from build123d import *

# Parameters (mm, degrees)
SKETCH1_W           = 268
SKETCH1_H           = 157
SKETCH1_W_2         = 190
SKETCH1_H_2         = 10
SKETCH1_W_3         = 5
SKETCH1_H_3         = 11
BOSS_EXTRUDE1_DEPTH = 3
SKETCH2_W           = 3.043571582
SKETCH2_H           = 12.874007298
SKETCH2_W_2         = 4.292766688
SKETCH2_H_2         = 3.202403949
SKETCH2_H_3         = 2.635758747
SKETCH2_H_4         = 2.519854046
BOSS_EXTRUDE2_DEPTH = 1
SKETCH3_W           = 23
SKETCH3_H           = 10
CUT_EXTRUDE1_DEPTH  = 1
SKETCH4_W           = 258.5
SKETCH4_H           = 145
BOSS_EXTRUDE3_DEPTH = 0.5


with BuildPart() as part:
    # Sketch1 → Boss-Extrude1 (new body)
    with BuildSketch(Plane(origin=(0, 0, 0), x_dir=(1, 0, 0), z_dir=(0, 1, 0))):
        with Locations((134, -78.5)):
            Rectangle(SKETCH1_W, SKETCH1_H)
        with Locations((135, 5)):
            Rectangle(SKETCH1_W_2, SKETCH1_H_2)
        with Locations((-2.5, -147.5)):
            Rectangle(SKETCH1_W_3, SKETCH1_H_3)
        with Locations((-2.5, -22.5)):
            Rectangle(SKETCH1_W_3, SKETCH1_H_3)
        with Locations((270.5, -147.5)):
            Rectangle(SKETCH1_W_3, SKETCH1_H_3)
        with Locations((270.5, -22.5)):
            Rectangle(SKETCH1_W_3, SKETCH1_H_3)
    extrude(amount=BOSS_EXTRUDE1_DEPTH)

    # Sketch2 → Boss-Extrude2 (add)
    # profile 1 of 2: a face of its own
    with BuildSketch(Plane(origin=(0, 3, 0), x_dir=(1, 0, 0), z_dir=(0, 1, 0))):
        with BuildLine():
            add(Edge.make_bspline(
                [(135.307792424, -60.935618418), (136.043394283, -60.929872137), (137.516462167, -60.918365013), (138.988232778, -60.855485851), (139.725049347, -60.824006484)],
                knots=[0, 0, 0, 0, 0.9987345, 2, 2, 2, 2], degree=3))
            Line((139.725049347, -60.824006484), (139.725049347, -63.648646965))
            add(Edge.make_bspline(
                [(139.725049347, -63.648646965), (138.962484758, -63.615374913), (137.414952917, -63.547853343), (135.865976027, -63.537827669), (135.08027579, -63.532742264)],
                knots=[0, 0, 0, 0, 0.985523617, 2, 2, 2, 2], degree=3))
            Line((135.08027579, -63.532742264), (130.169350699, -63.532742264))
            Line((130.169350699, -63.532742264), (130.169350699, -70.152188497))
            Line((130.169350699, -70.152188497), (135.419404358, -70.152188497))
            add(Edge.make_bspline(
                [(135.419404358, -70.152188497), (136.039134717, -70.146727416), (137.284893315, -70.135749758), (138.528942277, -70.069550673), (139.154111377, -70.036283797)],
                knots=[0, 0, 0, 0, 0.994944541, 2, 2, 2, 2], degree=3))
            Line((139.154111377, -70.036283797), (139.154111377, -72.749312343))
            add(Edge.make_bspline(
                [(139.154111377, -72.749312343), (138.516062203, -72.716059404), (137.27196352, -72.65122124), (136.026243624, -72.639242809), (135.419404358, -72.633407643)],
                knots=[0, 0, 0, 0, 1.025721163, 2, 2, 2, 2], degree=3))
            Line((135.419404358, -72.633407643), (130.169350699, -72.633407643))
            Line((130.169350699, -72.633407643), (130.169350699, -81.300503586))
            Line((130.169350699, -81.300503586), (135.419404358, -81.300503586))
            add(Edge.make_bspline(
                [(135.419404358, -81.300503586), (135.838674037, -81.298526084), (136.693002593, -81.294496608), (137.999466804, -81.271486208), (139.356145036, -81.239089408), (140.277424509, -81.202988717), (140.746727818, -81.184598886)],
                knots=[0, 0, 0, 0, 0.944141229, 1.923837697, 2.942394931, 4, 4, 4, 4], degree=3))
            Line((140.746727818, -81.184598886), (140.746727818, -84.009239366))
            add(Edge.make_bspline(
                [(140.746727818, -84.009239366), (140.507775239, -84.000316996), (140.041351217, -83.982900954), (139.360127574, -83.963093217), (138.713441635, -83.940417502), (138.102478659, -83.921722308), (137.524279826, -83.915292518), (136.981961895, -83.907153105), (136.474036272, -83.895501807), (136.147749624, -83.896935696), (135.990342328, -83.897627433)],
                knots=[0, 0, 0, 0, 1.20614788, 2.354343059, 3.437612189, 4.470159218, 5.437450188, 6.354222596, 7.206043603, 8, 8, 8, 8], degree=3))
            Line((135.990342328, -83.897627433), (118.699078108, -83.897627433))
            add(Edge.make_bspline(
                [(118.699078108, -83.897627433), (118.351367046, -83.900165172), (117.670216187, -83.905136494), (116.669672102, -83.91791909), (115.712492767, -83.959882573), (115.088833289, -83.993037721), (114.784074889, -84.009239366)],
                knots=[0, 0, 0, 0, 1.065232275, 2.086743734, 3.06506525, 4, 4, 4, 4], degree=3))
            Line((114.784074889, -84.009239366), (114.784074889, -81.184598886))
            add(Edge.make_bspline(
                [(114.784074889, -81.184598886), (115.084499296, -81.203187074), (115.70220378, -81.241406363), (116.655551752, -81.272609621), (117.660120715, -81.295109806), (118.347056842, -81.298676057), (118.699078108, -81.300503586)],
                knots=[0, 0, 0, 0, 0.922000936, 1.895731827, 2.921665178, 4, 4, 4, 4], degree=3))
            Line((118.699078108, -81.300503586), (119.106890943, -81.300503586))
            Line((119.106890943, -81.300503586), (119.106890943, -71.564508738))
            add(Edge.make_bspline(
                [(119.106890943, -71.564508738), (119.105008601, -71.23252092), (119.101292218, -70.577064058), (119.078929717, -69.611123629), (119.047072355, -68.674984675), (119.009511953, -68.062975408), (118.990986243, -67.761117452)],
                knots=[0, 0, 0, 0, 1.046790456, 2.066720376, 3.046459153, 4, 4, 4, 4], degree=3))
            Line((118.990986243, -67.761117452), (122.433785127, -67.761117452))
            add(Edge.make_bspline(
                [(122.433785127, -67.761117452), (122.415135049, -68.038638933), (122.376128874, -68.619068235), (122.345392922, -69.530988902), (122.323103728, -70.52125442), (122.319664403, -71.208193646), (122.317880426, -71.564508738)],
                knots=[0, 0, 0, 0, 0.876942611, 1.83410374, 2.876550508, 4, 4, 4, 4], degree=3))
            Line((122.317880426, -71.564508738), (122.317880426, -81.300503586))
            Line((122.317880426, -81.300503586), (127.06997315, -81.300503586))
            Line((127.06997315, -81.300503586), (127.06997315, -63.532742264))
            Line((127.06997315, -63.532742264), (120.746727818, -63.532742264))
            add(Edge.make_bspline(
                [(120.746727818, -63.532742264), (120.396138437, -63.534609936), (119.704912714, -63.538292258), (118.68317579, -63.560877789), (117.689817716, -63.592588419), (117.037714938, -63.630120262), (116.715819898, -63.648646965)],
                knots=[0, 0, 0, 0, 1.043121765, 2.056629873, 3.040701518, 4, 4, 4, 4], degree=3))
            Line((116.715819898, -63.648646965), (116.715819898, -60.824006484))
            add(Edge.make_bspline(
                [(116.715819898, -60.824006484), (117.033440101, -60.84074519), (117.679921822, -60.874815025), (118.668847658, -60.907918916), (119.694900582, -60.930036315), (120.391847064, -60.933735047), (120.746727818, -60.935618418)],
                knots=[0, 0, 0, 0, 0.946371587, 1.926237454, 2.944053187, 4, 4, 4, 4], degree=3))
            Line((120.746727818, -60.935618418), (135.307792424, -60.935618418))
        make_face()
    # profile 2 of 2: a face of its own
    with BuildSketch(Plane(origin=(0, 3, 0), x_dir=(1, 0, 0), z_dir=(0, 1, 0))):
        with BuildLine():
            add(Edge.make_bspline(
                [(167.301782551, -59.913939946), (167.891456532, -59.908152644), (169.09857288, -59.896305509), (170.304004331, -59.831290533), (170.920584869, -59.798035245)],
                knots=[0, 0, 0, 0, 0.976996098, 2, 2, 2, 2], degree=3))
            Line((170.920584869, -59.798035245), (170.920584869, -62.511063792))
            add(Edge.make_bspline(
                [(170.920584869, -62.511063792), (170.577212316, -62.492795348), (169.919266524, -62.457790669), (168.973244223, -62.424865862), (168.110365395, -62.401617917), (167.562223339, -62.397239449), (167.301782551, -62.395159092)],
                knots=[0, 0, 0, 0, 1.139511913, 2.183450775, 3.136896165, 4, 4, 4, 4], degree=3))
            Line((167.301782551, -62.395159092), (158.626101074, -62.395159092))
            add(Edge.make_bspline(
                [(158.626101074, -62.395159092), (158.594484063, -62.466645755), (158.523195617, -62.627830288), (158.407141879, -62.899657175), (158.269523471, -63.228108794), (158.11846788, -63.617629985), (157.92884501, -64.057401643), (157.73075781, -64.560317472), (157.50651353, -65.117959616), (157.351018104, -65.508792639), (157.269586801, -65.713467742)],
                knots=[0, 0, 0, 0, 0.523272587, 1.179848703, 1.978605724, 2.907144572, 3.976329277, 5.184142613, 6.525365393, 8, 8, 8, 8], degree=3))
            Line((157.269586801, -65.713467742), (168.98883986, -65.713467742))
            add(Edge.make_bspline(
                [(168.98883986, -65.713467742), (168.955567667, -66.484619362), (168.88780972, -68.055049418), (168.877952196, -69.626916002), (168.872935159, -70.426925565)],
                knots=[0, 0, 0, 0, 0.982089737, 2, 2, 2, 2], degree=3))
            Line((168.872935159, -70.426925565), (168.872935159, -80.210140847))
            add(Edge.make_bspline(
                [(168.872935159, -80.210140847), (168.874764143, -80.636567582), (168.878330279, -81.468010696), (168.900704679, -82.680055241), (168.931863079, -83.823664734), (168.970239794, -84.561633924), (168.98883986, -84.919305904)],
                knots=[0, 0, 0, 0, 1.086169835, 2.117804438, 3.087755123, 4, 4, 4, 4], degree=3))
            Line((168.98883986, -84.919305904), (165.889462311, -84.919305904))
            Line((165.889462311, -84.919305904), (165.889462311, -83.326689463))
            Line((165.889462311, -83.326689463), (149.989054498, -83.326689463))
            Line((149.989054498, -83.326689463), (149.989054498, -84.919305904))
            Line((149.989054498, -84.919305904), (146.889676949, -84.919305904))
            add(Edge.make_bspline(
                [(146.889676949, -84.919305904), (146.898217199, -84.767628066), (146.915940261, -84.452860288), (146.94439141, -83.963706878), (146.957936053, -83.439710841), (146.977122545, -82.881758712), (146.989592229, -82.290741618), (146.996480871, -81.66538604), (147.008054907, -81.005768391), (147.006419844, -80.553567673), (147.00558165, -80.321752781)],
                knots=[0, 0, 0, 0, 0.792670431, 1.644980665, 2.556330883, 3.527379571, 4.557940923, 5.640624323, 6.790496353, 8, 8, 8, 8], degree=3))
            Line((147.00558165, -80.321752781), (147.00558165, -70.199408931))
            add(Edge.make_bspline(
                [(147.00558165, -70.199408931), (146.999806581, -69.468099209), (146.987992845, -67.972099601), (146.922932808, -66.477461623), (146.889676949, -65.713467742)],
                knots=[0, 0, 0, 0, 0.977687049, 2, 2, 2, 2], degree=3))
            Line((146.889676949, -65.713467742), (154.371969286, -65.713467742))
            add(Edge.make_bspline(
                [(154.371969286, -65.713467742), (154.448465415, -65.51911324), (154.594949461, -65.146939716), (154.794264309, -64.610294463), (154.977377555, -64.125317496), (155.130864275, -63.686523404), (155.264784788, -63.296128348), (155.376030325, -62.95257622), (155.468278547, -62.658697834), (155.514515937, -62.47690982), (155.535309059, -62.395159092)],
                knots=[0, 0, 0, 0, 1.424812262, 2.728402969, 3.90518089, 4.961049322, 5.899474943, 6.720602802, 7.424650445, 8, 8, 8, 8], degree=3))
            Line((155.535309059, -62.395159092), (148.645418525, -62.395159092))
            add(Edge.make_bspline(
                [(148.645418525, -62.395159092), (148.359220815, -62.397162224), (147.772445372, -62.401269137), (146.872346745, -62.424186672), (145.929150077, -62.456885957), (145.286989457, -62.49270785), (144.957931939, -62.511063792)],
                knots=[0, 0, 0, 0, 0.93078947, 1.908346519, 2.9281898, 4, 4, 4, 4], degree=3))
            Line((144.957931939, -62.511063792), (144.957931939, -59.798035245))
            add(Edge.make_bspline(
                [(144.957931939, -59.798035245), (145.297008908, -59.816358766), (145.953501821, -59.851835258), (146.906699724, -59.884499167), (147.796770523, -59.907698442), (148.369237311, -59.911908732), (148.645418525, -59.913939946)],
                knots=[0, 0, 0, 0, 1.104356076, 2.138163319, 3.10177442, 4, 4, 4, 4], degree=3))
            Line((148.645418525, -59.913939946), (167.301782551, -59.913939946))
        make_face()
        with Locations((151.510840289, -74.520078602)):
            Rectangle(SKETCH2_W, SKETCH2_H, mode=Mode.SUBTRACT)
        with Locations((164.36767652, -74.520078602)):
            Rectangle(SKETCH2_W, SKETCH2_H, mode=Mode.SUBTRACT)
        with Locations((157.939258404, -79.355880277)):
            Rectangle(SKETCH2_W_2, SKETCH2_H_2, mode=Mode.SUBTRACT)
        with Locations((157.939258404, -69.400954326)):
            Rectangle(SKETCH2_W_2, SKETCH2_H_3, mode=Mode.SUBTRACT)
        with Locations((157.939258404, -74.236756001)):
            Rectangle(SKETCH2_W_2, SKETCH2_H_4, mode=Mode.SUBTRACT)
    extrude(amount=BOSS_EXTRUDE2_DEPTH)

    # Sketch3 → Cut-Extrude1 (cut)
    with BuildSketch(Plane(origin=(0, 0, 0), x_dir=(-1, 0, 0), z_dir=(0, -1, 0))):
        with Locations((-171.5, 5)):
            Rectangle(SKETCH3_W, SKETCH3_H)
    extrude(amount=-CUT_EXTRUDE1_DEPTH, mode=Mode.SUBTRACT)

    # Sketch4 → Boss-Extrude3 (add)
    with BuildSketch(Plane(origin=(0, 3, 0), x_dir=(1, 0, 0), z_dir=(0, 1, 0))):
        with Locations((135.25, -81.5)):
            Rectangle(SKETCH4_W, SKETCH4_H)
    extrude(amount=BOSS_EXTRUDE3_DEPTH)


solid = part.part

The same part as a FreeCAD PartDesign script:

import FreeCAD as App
import Part
import Sketcher

V = App.Vector

doc = App.newDocument("Part")
params = doc.addObject("Spreadsheet::Sheet", "Params")
for row, (alias, value) in enumerate([
    ("sketch1_width", "268 mm"),
    ("sketch1_width2", "5 mm"),
    ("sketch1_width3", "38 mm"),
    ("sketch1_width4", "190 mm"),
    ("sketch1_height", "4 mm"),
    ("pad1_length", "3 mm"),
    ("pad2_length", "1 mm"),
    ("sketch3_width", "23 mm"),
    ("sketch3_height", "10 mm"),
    ("pocket1_length", "1 mm"),
    ("sketch4_height", "145 mm"),
    ("sketch4_width", "258.5 mm"),
    ("pad3_length", "0.5 mm"),
], start=1):
    params.set(f"A{row}", alias)
    params.set(f"B{row}", "=" + value)
    params.setAlias(f"B{row}", alias)

body = doc.addObject("PartDesign::Body", "Body")

sketch1 = body.newObject("Sketcher::SketchObject", "Sketch")
sketch1.AttachmentSupport = (doc.getObject("XZ_Plane"), [""])
sketch1.MapMode = "FlatFace"
sketch1.addGeometry(Part.LineSegment(V(0, 153, 0), V(0, 157, 0)), False)
sketch1.addGeometry(Part.LineSegment(V(0, 157, 0), V(268, 157, 0)), False)
sketch1.addGeometry(Part.LineSegment(V(268, 157, 0), V(268, 153, 0)), False)
sketch1.addGeometry(Part.LineSegment(V(268, 153, 0), V(273, 153, 0)), False)
sketch1.addGeometry(Part.LineSegment(V(273, 153, 0), V(273, 142, 0)), False)
sketch1.addGeometry(Part.LineSegment(V(273, 142, 0), V(268, 142, 0)), False)
sketch1.addGeometry(Part.LineSegment(V(268, 142, 0), V(268, 28, 0)), False)
sketch1.addGeometry(Part.LineSegment(V(268, 28, 0), V(273, 28, 0)), False)
sketch1.addGeometry(Part.LineSegment(V(273, 28, 0), V(273, 17, 0)), False)
sketch1.addGeometry(Part.LineSegment(V(273, 17, 0), V(268, 17, 0)), False)
sketch1.addGeometry(Part.LineSegment(V(268, 17, 0), V(268, 0, 0)), False)
sketch1.addGeometry(Part.LineSegment(V(268, 0, 0), V(230, 0, 0)), False)
sketch1.addGeometry(Part.LineSegment(V(230, 0, 0), V(230, -10, 0)), False)
sketch1.addGeometry(Part.LineSegment(V(230, -10, 0), V(40, -10, 0)), False)
sketch1.addGeometry(Part.LineSegment(V(40, -10, 0), V(40, 0, 0)), False)
sketch1.addGeometry(Part.LineSegment(V(40, 0, 0), V(0, 0, 0)), False)
sketch1.addGeometry(Part.LineSegment(V(0, 0, 0), V(0, 17, 0)), False)
sketch1.addGeometry(Part.LineSegment(V(0, 17, 0), V(-5, 17, 0)), False)
sketch1.addGeometry(Part.LineSegment(V(-5, 17, 0), V(-5, 28, 0)), False)
sketch1.addGeometry(Part.LineSegment(V(-5, 28, 0), V(0, 28, 0)), False)
sketch1.addGeometry(Part.LineSegment(V(0, 28, 0), V(0, 142, 0)), False)
sketch1.addGeometry(Part.LineSegment(V(0, 142, 0), V(-5, 142, 0)), False)
sketch1.addGeometry(Part.LineSegment(V(-5, 142, 0), V(-5, 153, 0)), False)
sketch1.addGeometry(Part.LineSegment(V(-5, 153, 0), V(0, 153, 0)), False)
sketch1.addConstraint(Sketcher.Constraint("Coincident", 0, 2, 1, 1))
sketch1.addConstraint(Sketcher.Constraint("Coincident", 1, 2, 2, 1))
sketch1.addConstraint(Sketcher.Constraint("Coincident", 2, 2, 3, 1))
sketch1.addConstraint(Sketcher.Constraint("Coincident", 3, 2, 4, 1))
sketch1.addConstraint(Sketcher.Constraint("Coincident", 4, 2, 5, 1))
sketch1.addConstraint(Sketcher.Constraint("Coincident", 5, 2, 6, 1))
sketch1.addConstraint(Sketcher.Constraint("Coincident", 6, 2, 7, 1))
sketch1.addConstraint(Sketcher.Constraint("Coincident", 7, 2, 8, 1))
sketch1.addConstraint(Sketcher.Constraint("Coincident", 8, 2, 9, 1))
sketch1.addConstraint(Sketcher.Constraint("Coincident", 9, 2, 10, 1))
sketch1.addConstraint(Sketcher.Constraint("Coincident", 10, 2, 11, 1))
sketch1.addConstraint(Sketcher.Constraint("Coincident", 11, 2, 12, 1))
sketch1.addConstraint(Sketcher.Constraint("Coincident", 12, 2, 13, 1))
sketch1.addConstraint(Sketcher.Constraint("Coincident", 13, 2, 14, 1))
sketch1.addConstraint(Sketcher.Constraint("Coincident", 14, 2, 15, 1))
sketch1.addConstraint(Sketcher.Constraint("Coincident", 15, 2, 16, 1))
sketch1.addConstraint(Sketcher.Constraint("Coincident", 16, 2, 17, 1))
sketch1.addConstraint(Sketcher.Constraint("Coincident", 17, 2, 18, 1))
sketch1.addConstraint(Sketcher.Constraint("Coincident", 18, 2, 19, 1))
sketch1.addConstraint(Sketcher.Constraint("Coincident", 19, 2, 20, 1))
sketch1.addConstraint(Sketcher.Constraint("Coincident", 20, 2, 21, 1))
sketch1.addConstraint(Sketcher.Constraint("Coincident", 21, 2, 22, 1))
sketch1.addConstraint(Sketcher.Constraint("Coincident", 22, 2, 23, 1))
sketch1.addConstraint(Sketcher.Constraint("Coincident", 23, 2, 0, 1))
sketch1.addConstraint(Sketcher.Constraint("Vertical", 0))
sketch1.addConstraint(Sketcher.Constraint("Horizontal", 1))
sketch1.addConstraint(Sketcher.Constraint("Vertical", 2))
sketch1.addConstraint(Sketcher.Constraint("Horizontal", 3))
sketch1.addConstraint(Sketcher.Constraint("Vertical", 4))
sketch1.addConstraint(Sketcher.Constraint("Horizontal", 5))
sketch1.addConstraint(Sketcher.Constraint("Vertical", 6))
sketch1.addConstraint(Sketcher.Constraint("Horizontal", 7))
sketch1.addConstraint(Sketcher.Constraint("Vertical", 8))
sketch1.addConstraint(Sketcher.Constraint("Horizontal", 9))
sketch1.addConstraint(Sketcher.Constraint("Vertical", 10))
sketch1.addConstraint(Sketcher.Constraint("Horizontal", 11))
sketch1.addConstraint(Sketcher.Constraint("Vertical", 12))
sketch1.addConstraint(Sketcher.Constraint("Horizontal", 13))
sketch1.addConstraint(Sketcher.Constraint("Vertical", 14))
sketch1.addConstraint(Sketcher.Constraint("Horizontal", 15))
sketch1.addConstraint(Sketcher.Constraint("Vertical", 16))
sketch1.addConstraint(Sketcher.Constraint("Horizontal", 17))
sketch1.addConstraint(Sketcher.Constraint("Vertical", 18))
sketch1.addConstraint(Sketcher.Constraint("Horizontal", 19))
sketch1.addConstraint(Sketcher.Constraint("Vertical", 20))
sketch1.addConstraint(Sketcher.Constraint("Horizontal", 21))
sketch1.addConstraint(Sketcher.Constraint("Vertical", 22))
sketch1.addConstraint(Sketcher.Constraint("Horizontal", 23))
sketch1.addConstraint(Sketcher.Constraint("Coincident", 15, 2, -1, 1))
sketch1.addConstraint(Sketcher.Constraint("PointOnObject", 0, 2, -2))
sketch1.addConstraint(Sketcher.Constraint("PointOnObject", 10, 2, -1))
sketch1.addConstraint(Sketcher.Constraint("PointOnObject", 19, 2, -2))
sketch1.addConstraint(Sketcher.Constraint("Horizontal", 9, 2, 16, 2))
sketch1.addConstraint(Sketcher.Constraint("Horizontal", 7, 2, 18, 2))
sketch1.addConstraint(Sketcher.Constraint("Horizontal", 5, 2, 20, 2))
sketch1.addConstraint(Sketcher.Constraint("Horizontal", 3, 2, 22, 2))
sketch1.addConstraint(Sketcher.Constraint("Vertical", 2, 2, 5, 2))
sketch1.addConstraint(Sketcher.Constraint("Vertical", 4, 2, 7, 2))
sketch1.addConstraint(Sketcher.Constraint("Vertical", 6, 2, 9, 2))
sketch1.addConstraint(Sketcher.Constraint("Vertical", 18, 2, 21, 2))
sketch1.addConstraint(Sketcher.Constraint("Equal", 9, 17))
sketch1.addConstraint(Sketcher.Constraint("Equal", 4, 8))
sketch1.addConstraint(Sketcher.Constraint("DistanceX", 1, 1, 1, 2, 268.0))
sketch1.addConstraint(Sketcher.Constraint("DistanceX", 3, 1, 3, 2, 5.0))
sketch1.addConstraint(Sketcher.Constraint("DistanceX", 11, 2, 11, 1, 38.0))
sketch1.addConstraint(Sketcher.Constraint("DistanceX", 13, 2, 13, 1, 190.0))
sketch1.addConstraint(Sketcher.Constraint("DistanceY", 0, 1, 0, 2, 4.0))
sketch1.addConstraint(Sketcher.Constraint("DistanceY", 4, 2, 4, 1, 11.0))
sketch1.addConstraint(Sketcher.Constraint("DistanceY", 6, 2, 6, 1, 114.0))
sketch1.addConstraint(Sketcher.Constraint("DistanceY", 10, 2, 10, 1, 17.0))
sketch1.addConstraint(Sketcher.Constraint("DistanceY", 12, 2, 12, 1, 10.0))
sketch1.setExpression("Constraints[62]", "Params.sketch1_width")
sketch1.setExpression("Constraints[63]", "Params.sketch1_width2")
sketch1.setExpression("Constraints[64]", "Params.sketch1_width3")
sketch1.setExpression("Constraints[65]", "Params.sketch1_width4")
sketch1.setExpression("Constraints[66]", "Params.sketch1_height")
pad1 = body.newObject("PartDesign::Pad", "Pad")
pad1.Profile = sketch1
pad1.setExpression("Length", "Params.pad1_length")
pad1.Reversed = True

sketch2 = body.newObject("Sketcher::SketchObject", "Sketch001")
sketch2.AttachmentSupport = (doc.getObject("XZ_Plane"), [""])
sketch2.MapMode = "FlatFace"
sketch2.AttachmentOffset = App.Placement(V(0, 0, -3), App.Rotation())
sketch2.addGeometry(Part.BSplineCurve([V(135.307792, 60.935618, 0), V(136.043394, 60.929872, 0), V(137.516462, 60.918365, 0), V(138.988233, 60.855486, 0), V(139.725049, 60.824006, 0)], [4, 1, 4], [0, 0.9987345, 2], False, 3, [1, 1, 1, 1, 1], False), False)
sketch2.addGeometry(Part.LineSegment(V(135.307792, 60.935618, 0), V(120.746728, 60.935618, 0)), False)
sketch2.addGeometry(Part.BSplineCurve([V(116.71582, 60.824006, 0), V(117.03344, 60.840745, 0), V(117.679922, 60.874815, 0), V(118.668848, 60.907919, 0), V(119.694901, 60.930036, 0), V(120.391847, 60.933735, 0), V(120.746728, 60.935618, 0)], [4, 1, 1, 1, 4], [0, 0.946371587, 1.926237454, 2.944053187, 4], False, 3, [1, 1, 1, 1, 1, 1, 1], False), False)
sketch2.addGeometry(Part.LineSegment(V(116.71582, 60.824006, 0), V(116.71582, 63.648647, 0)), False)
sketch2.addGeometry(Part.BSplineCurve([V(120.746728, 63.532742, 0), V(120.396138, 63.53461, 0), V(119.704913, 63.538292, 0), V(118.683176, 63.560878, 0), V(117.689818, 63.592588, 0), V(117.037715, 63.63012, 0), V(116.71582, 63.648647, 0)], [4, 1, 1, 1, 4], [0, 1.043121765, 2.056629873, 3.040701518, 4], False, 3, [1, 1, 1, 1, 1, 1, 1], False), False)
sketch2.addGeometry(Part.LineSegment(V(120.746728, 63.532742, 0), V(127.069973, 63.532742, 0)), False)
sketch2.addGeometry(Part.LineSegment(V(127.069973, 63.532742, 0), V(127.069973, 81.300504, 0)), False)
sketch2.addGeometry(Part.LineSegment(V(127.069973, 81.300504, 0), V(122.31788, 81.300504, 0)), False)
sketch2.addGeometry(Part.LineSegment(V(122.31788, 81.300504, 0), V(122.31788, 71.564509, 0)), False)
sketch2.addGeometry(Part.BSplineCurve([V(122.433785, 67.761117, 0), V(122.415135, 68.038639, 0), V(122.376129, 68.619068, 0), V(122.345393, 69.530989, 0), V(122.323104, 70.521254, 0), V(122.319664, 71.208194, 0), V(122.31788, 71.564509, 0)], [4, 1, 1, 1, 4], [0, 0.876942611, 1.83410374, 2.876550508, 4], False, 3, [1, 1, 1, 1, 1, 1, 1], False), False)
sketch2.addGeometry(Part.LineSegment(V(122.433785, 67.761117, 0), V(118.990986, 67.761117, 0)), False)
sketch2.addGeometry(Part.BSplineCurve([V(119.106891, 71.564509, 0), V(119.105009, 71.232521, 0), V(119.101292, 70.577064, 0), V(119.07893, 69.611124, 0), V(119.047072, 68.674985, 0), V(119.009512, 68.062975, 0), V(118.990986, 67.761117, 0)], [4, 1, 1, 1, 4], [0, 1.046790456, 2.066720376, 3.046459153, 4], False, 3, [1, 1, 1, 1, 1, 1, 1], False), False)
sketch2.addGeometry(Part.LineSegment(V(119.106891, 71.564509, 0), V(119.106891, 81.300504, 0)), False)
sketch2.addGeometry(Part.LineSegment(V(119.106891, 81.300504, 0), V(118.699078, 81.300504, 0)), False)
sketch2.addGeometry(Part.BSplineCurve([V(114.784075, 81.184599, 0), V(115.084499, 81.203187, 0), V(115.702204, 81.241406, 0), V(116.655552, 81.27261, 0), V(117.660121, 81.29511, 0), V(118.347057, 81.298676, 0), V(118.699078, 81.300504, 0)], [4, 1, 1, 1, 4], [0, 0.922000936, 1.895731827, 2.921665178, 4], False, 3, [1, 1, 1, 1, 1, 1, 1], False), False)
sketch2.addGeometry(Part.LineSegment(V(114.784075, 81.184599, 0), V(114.784075, 84.009239, 0)), False)
sketch2.addGeometry(Part.BSplineCurve([V(118.699078, 83.897627, 0), V(118.351367, 83.900165, 0), V(117.670216, 83.905136, 0), V(116.669672, 83.917919, 0), V(115.712493, 83.959883, 0), V(115.088833, 83.993038, 0), V(114.784075, 84.009239, 0)], [4, 1, 1, 1, 4], [0, 1.065232275, 2.086743734, 3.06506525, 4], False, 3, [1, 1, 1, 1, 1, 1, 1], False), False)
sketch2.addGeometry(Part.LineSegment(V(118.699078, 83.897627, 0), V(135.990342, 83.897627, 0)), False)
sketch2.addGeometry(Part.BSplineCurve([V(140.746728, 84.009239, 0), V(140.507775, 84.000317, 0), V(140.041351, 83.982901, 0), V(139.360128, 83.963093, 0), V(138.713442, 83.940418, 0), V(138.102479, 83.921722, 0), V(137.52428, 83.915293, 0), V(136.981962, 83.907153, 0), V(136.474036, 83.895502, 0), V(136.14775, 83.896936, 0), V(135.990342, 83.897627, 0)], [4, 1, 1, 1, 1, 1, 1, 1, 4], [0, 1.20614788, 2.354343059, 3.437612189, 4.470159218, 5.437450188, 6.354222596, 7.206043603, 8], False, 3, [1, 1, 1, 1, 1, 1, 1, 1, 1, 1, 1], False), False)
sketch2.addGeometry(Part.LineSegment(V(140.746728, 84.009239, 0), V(140.746728, 81.184599, 0)), False)
sketch2.addGeometry(Part.BSplineCurve([V(135.419404, 81.300504, 0), V(135.838674, 81.298526, 0), V(136.693003, 81.294497, 0), V(137.999467, 81.271486, 0), V(139.356145, 81.239089, 0), V(140.277425, 81.202989, 0), V(140.746728, 81.184599, 0)], [4, 1, 1, 1, 4], [0, 0.944141229, 1.923837697, 2.942394931, 4], False, 3, [1, 1, 1, 1, 1, 1, 1], False), False)
sketch2.addGeometry(Part.LineSegment(V(135.419404, 81.300504, 0), V(130.169351, 81.300504, 0)), False)
sketch2.addGeometry(Part.LineSegment(V(130.169351, 81.300504, 0), V(130.169351, 72.633408, 0)), False)
sketch2.addGeometry(Part.LineSegment(V(130.169351, 72.633408, 0), V(135.419404, 72.633408, 0)), False)
sketch2.addGeometry(Part.BSplineCurve([V(139.154111, 72.749312, 0), V(138.516062, 72.716059, 0), V(137.271964, 72.651221, 0), V(136.026244, 72.639243, 0), V(135.419404, 72.633408, 0)], [4, 1, 4], [0, 1.025721163, 2], False, 3, [1, 1, 1, 1, 1], False), False)
sketch2.addGeometry(Part.LineSegment(V(139.154111, 72.749312, 0), V(139.154111, 70.036284, 0)), False)
sketch2.addGeometry(Part.BSplineCurve([V(135.419404, 70.152188, 0), V(136.039135, 70.146727, 0), V(137.284893, 70.13575, 0), V(138.528942, 70.069551, 0), V(139.154111, 70.036284, 0)], [4, 1, 4], [0, 0.994944541, 2], False, 3, [1, 1, 1, 1, 1], False), False)
sketch2.addGeometry(Part.LineSegment(V(135.419404, 70.152188, 0), V(130.169351, 70.152188, 0)), False)
sketch2.addGeometry(Part.LineSegment(V(130.169351, 70.152188, 0), V(130.169351, 63.532742, 0)), False)
sketch2.addGeometry(Part.LineSegment(V(130.169351, 63.532742, 0), V(135.080276, 63.532742, 0)), False)
sketch2.addGeometry(Part.BSplineCurve([V(139.725049, 63.648647, 0), V(138.962485, 63.615375, 0), V(137.414953, 63.547853, 0), V(135.865976, 63.537828, 0), V(135.080276, 63.532742, 0)], [4, 1, 4], [0, 0.985523617, 2], False, 3, [1, 1, 1, 1, 1], False), False)
sketch2.addGeometry(Part.LineSegment(V(139.725049, 63.648647, 0), V(139.725049, 60.824006, 0)), False)
sketch2.addGeometry(Part.BSplineCurve([V(167.301783, 59.91394, 0), V(167.891457, 59.908153, 0), V(169.098573, 59.896306, 0), V(170.304004, 59.831291, 0), V(170.920585, 59.798035, 0)], [4, 1, 4], [0, 0.976996098, 2], False, 3, [1, 1, 1, 1, 1], False), False)
sketch2.addGeometry(Part.LineSegment(V(167.301783, 59.91394, 0), V(148.645419, 59.91394, 0)), False)
sketch2.addGeometry(Part.BSplineCurve([V(144.957932, 59.798035, 0), V(145.297009, 59.816359, 0), V(145.953502, 59.851835, 0), V(146.9067, 59.884499, 0), V(147.796771, 59.907698, 0), V(148.369237, 59.911909, 0), V(148.645419, 59.91394, 0)], [4, 1, 1, 1, 4], [0, 1.104356076, 2.138163319, 3.10177442, 4], False, 3, [1, 1, 1, 1, 1, 1, 1], False), False)
sketch2.addGeometry(Part.LineSegment(V(144.957932, 59.798035, 0), V(144.957932, 62.511064, 0)), False)
sketch2.addGeometry(Part.BSplineCurve([V(148.645419, 62.395159, 0), V(148.359221, 62.397162, 0), V(147.772445, 62.401269, 0), V(146.872347, 62.424187, 0), V(145.92915, 62.456886, 0), V(145.286989, 62.492708, 0), V(144.957932, 62.511064, 0)], [4, 1, 1, 1, 4], [0, 0.93078947, 1.908346519, 2.9281898, 4], False, 3, [1, 1, 1, 1, 1, 1, 1], False), False)
sketch2.addGeometry(Part.LineSegment(V(148.645419, 62.395159, 0), V(155.535309, 62.395159, 0)), False)
sketch2.addGeometry(Part.BSplineCurve([V(154.371969, 65.713468, 0), V(154.448465, 65.519113, 0), V(154.594949, 65.14694, 0), V(154.794264, 64.610294, 0), V(154.977378, 64.125317, 0), V(155.130864, 63.686523, 0), V(155.264785, 63.296128, 0), V(155.37603, 62.952576, 0), V(155.468279, 62.658698, 0), V(155.514516, 62.47691, 0), V(155.535309, 62.395159, 0)], [4, 1, 1, 1, 1, 1, 1, 1, 4], [0, 1.424812262, 2.728402969, 3.90518089, 4.961049322, 5.899474943, 6.720602802, 7.424650445, 8], False, 3, [1, 1, 1, 1, 1, 1, 1, 1, 1, 1, 1], False), False)
sketch2.addGeometry(Part.LineSegment(V(154.371969, 65.713468, 0), V(146.889677, 65.713468, 0)), False)
sketch2.addGeometry(Part.BSplineCurve([V(147.005582, 70.199409, 0), V(146.999807, 69.468099, 0), V(146.987993, 67.9721, 0), V(146.922933, 66.477462, 0), V(146.889677, 65.713468, 0)], [4, 1, 4], [0, 0.977687049, 2], False, 3, [1, 1, 1, 1, 1], False), False)
sketch2.addGeometry(Part.LineSegment(V(147.005582, 70.199409, 0), V(147.005582, 80.321753, 0)), False)
sketch2.addGeometry(Part.BSplineCurve([V(146.889677, 84.919306, 0), V(146.898217, 84.767628, 0), V(146.91594, 84.45286, 0), V(146.944391, 83.963707, 0), V(146.957936, 83.439711, 0), V(146.977123, 82.881759, 0), V(146.989592, 82.290742, 0), V(146.996481, 81.665386, 0), V(147.008055, 81.005768, 0), V(147.00642, 80.553568, 0), V(147.005582, 80.321753, 0)], [4, 1, 1, 1, 1, 1, 1, 1, 4], [0, 0.792670431, 1.644980665, 2.556330883, 3.527379571, 4.557940923, 5.640624323, 6.790496353, 8], False, 3, [1, 1, 1, 1, 1, 1, 1, 1, 1, 1, 1], False), False)
sketch2.addGeometry(Part.LineSegment(V(146.889677, 84.919306, 0), V(149.989054, 84.919306, 0)), False)
sketch2.addGeometry(Part.LineSegment(V(149.989054, 84.919306, 0), V(149.989054, 83.326689, 0)), False)
sketch2.addGeometry(Part.LineSegment(V(149.989054, 83.326689, 0), V(165.889462, 83.326689, 0)), False)
sketch2.addGeometry(Part.LineSegment(V(165.889462, 83.326689, 0), V(165.889462, 84.919306, 0)), False)
sketch2.addGeometry(Part.LineSegment(V(165.889462, 84.919306, 0), V(168.98884, 84.919306, 0)), False)
sketch2.addGeometry(Part.BSplineCurve([V(168.872935, 80.210141, 0), V(168.874764, 80.636568, 0), V(168.87833, 81.468011, 0), V(168.900705, 82.680055, 0), V(168.931863, 83.823665, 0), V(168.97024, 84.561634, 0), V(168.98884, 84.919306, 0)], [4, 1, 1, 1, 4], [0, 1.086169835, 2.117804438, 3.087755123, 4], False, 3, [1, 1, 1, 1, 1, 1, 1], False), False)
sketch2.addGeometry(Part.LineSegment(V(168.872935, 80.210141, 0), V(168.872935, 70.426926, 0)), False)
sketch2.addGeometry(Part.BSplineCurve([V(168.98884, 65.713468, 0), V(168.955568, 66.484619, 0), V(168.88781, 68.055049, 0), V(168.877952, 69.626916, 0), V(168.872935, 70.426926, 0)], [4, 1, 4], [0, 0.982089737, 2], False, 3, [1, 1, 1, 1, 1], False), False)
sketch2.addGeometry(Part.LineSegment(V(168.98884, 65.713468, 0), V(157.269587, 65.713468, 0)), False)
sketch2.addGeometry(Part.BSplineCurve([V(158.626101, 62.395159, 0), V(158.594484, 62.466646, 0), V(158.523196, 62.62783, 0), V(158.407142, 62.899657, 0), V(158.269523, 63.228109, 0), V(158.118468, 63.61763, 0), V(157.928845, 64.057402, 0), V(157.730758, 64.560317, 0), V(157.506514, 65.11796, 0), V(157.351018, 65.508793, 0), V(157.269587, 65.713468, 0)], [4, 1, 1, 1, 1, 1, 1, 1, 4], [0, 0.523272587, 1.179848703, 1.978605724, 2.907144572, 3.976329277, 5.184142613, 6.525365393, 8], False, 3, [1, 1, 1, 1, 1, 1, 1, 1, 1, 1, 1], False), False)
sketch2.addGeometry(Part.LineSegment(V(158.626101, 62.395159, 0), V(167.301783, 62.395159, 0)), False)
sketch2.addGeometry(Part.BSplineCurve([V(170.920585, 62.511064, 0), V(170.577212, 62.492795, 0), V(169.919267, 62.457791, 0), V(168.973244, 62.424866, 0), V(168.110365, 62.401618, 0), V(167.562223, 62.397239, 0), V(167.301783, 62.395159, 0)], [4, 1, 1, 1, 4], [0, 1.139511913, 2.183450775, 3.136896165, 4], False, 3, [1, 1, 1, 1, 1, 1, 1], False), False)
sketch2.addGeometry(Part.LineSegment(V(170.920585, 62.511064, 0), V(170.920585, 59.798035, 0)), False)
sketch2.addGeometry(Part.LineSegment(V(155.792875, 80.957082, 0), V(155.792875, 77.754678, 0)), False)
sketch2.addGeometry(Part.LineSegment(V(155.792875, 77.754678, 0), V(160.085642, 77.754678, 0)), False)
sketch2.addGeometry(Part.LineSegment(V(160.085642, 77.754678, 0), V(160.085642, 80.957082, 0)), False)
sketch2.addGeometry(Part.LineSegment(V(160.085642, 80.957082, 0), V(155.792875, 80.957082, 0)), False)
sketch2.addGeometry(Part.LineSegment(V(162.845891, 80.957082, 0), V(162.845891, 68.083075, 0)), False)
sketch2.addGeometry(Part.LineSegment(V(162.845891, 68.083075, 0), V(165.889462, 68.083075, 0)), False)
sketch2.addGeometry(Part.LineSegment(V(165.889462, 68.083075, 0), V(165.889462, 80.957082, 0)), False)
sketch2.addGeometry(Part.LineSegment(V(165.889462, 80.957082, 0), V(162.845891, 80.957082, 0)), False)
sketch2.addGeometry(Part.LineSegment(V(155.792875, 75.496683, 0), V(155.792875, 72.976829, 0)), False)
sketch2.addGeometry(Part.LineSegment(V(155.792875, 72.976829, 0), V(160.085642, 72.976829, 0)), False)
sketch2.addGeometry(Part.LineSegment(V(160.085642, 72.976829, 0), V(160.085642, 75.496683, 0)), False)
sketch2.addGeometry(Part.LineSegment(V(160.085642, 75.496683, 0), V(155.792875, 75.496683, 0)), False)
sketch2.addGeometry(Part.LineSegment(V(149.989054, 80.957082, 0), V(149.989054, 68.083075, 0)), False)
sketch2.addGeometry(Part.LineSegment(V(149.989054, 68.083075, 0), V(153.032626, 68.083075, 0)), False)
sketch2.addGeometry(Part.LineSegment(V(153.032626, 68.083075, 0), V(153.032626, 80.957082, 0)), False)
sketch2.addGeometry(Part.LineSegment(V(153.032626, 80.957082, 0), V(149.989054, 80.957082, 0)), False)
sketch2.addGeometry(Part.LineSegment(V(155.792875, 70.718834, 0), V(155.792875, 68.083075, 0)), False)
sketch2.addGeometry(Part.LineSegment(V(155.792875, 68.083075, 0), V(160.085642, 68.083075, 0)), False)
sketch2.addGeometry(Part.LineSegment(V(160.085642, 68.083075, 0), V(160.085642, 70.718834, 0)), False)
sketch2.addGeometry(Part.LineSegment(V(160.085642, 70.718834, 0), V(155.792875, 70.718834, 0)), False)
sketch2.addConstraint(Sketcher.Constraint("Block", 0))
sketch2.addConstraint(Sketcher.Constraint("Block", 2))
sketch2.addConstraint(Sketcher.Constraint("Block", 4))
sketch2.addConstraint(Sketcher.Constraint("Block", 9))
sketch2.addConstraint(Sketcher.Constraint("Block", 11))
sketch2.addConstraint(Sketcher.Constraint("Block", 14))
sketch2.addConstraint(Sketcher.Constraint("Block", 16))
sketch2.addConstraint(Sketcher.Constraint("Block", 18))
sketch2.addConstraint(Sketcher.Constraint("Block", 20))
sketch2.addConstraint(Sketcher.Constraint("Block", 24))
sketch2.addConstraint(Sketcher.Constraint("Block", 26))
sketch2.addConstraint(Sketcher.Constraint("Block", 30))
sketch2.addConstraint(Sketcher.Constraint("Block", 32))
sketch2.addConstraint(Sketcher.Constraint("Block", 34))
sketch2.addConstraint(Sketcher.Constraint("Block", 36))
sketch2.addConstraint(Sketcher.Constraint("Block", 38))
sketch2.addConstraint(Sketcher.Constraint("Block", 40))
sketch2.addConstraint(Sketcher.Constraint("Block", 42))
sketch2.addConstraint(Sketcher.Constraint("Block", 48))
sketch2.addConstraint(Sketcher.Constraint("Block", 50))
sketch2.addConstraint(Sketcher.Constraint("Block", 52))
sketch2.addConstraint(Sketcher.Constraint("Block", 54))
sketch2.addConstraint(Sketcher.Constraint("Coincident", 0, 1, 1, 1))
sketch2.addConstraint(Sketcher.Constraint("Coincident", 1, 2, 2, 2))
sketch2.addConstraint(Sketcher.Constraint("Coincident", 2, 1, 3, 1))
sketch2.addConstraint(Sketcher.Constraint("Coincident", 3, 2, 4, 2))
sketch2.addConstraint(Sketcher.Constraint("Coincident", 4, 1, 5, 1))
sketch2.addConstraint(Sketcher.Constraint("Coincident", 5, 2, 6, 1))
sketch2.addConstraint(Sketcher.Constraint("Coincident", 6, 2, 7, 1))
sketch2.addConstraint(Sketcher.Constraint("Coincident", 7, 2, 8, 1))
sketch2.addConstraint(Sketcher.Constraint("Coincident", 8, 2, 9, 2))
sketch2.addConstraint(Sketcher.Constraint("Coincident", 9, 1, 10, 1))
sketch2.addConstraint(Sketcher.Constraint("Coincident", 10, 2, 11, 2))
sketch2.addConstraint(Sketcher.Constraint("Coincident", 11, 1, 12, 1))
sketch2.addConstraint(Sketcher.Constraint("Coincident", 12, 2, 13, 1))
sketch2.addConstraint(Sketcher.Constraint("Coincident", 13, 2, 14, 2))
sketch2.addConstraint(Sketcher.Constraint("Coincident", 14, 1, 15, 1))
sketch2.addConstraint(Sketcher.Constraint("Coincident", 15, 2, 16, 2))
sketch2.addConstraint(Sketcher.Constraint("Coincident", 16, 1, 17, 1))
sketch2.addConstraint(Sketcher.Constraint("Coincident", 17, 2, 18, 2))
sketch2.addConstraint(Sketcher.Constraint("Coincident", 18, 1, 19, 1))
sketch2.addConstraint(Sketcher.Constraint("Coincident", 19, 2, 20, 2))
sketch2.addConstraint(Sketcher.Constraint("Coincident", 20, 1, 21, 1))
sketch2.addConstraint(Sketcher.Constraint("Coincident", 21, 2, 22, 1))
sketch2.addConstraint(Sketcher.Constraint("Coincident", 22, 2, 23, 1))
sketch2.addConstraint(Sketcher.Constraint("Coincident", 23, 2, 24, 2))
sketch2.addConstraint(Sketcher.Constraint("Coincident", 24, 1, 25, 1))
sketch2.addConstraint(Sketcher.Constraint("Coincident", 25, 2, 26, 2))
sketch2.addConstraint(Sketcher.Constraint("Coincident", 26, 1, 27, 1))
sketch2.addConstraint(Sketcher.Constraint("Coincident", 27, 2, 28, 1))
sketch2.addConstraint(Sketcher.Constraint("Coincident", 28, 2, 29, 1))
sketch2.addConstraint(Sketcher.Constraint("Coincident", 29, 2, 30, 2))
sketch2.addConstraint(Sketcher.Constraint("Coincident", 30, 1, 31, 1))
sketch2.addConstraint(Sketcher.Constraint("Coincident", 31, 2, 0, 2))
sketch2.addConstraint(Sketcher.Constraint("Coincident", 32, 1, 33, 1))
sketch2.addConstraint(Sketcher.Constraint("Coincident", 33, 2, 34, 2))
sketch2.addConstraint(Sketcher.Constraint("Coincident", 34, 1, 35, 1))
sketch2.addConstraint(Sketcher.Constraint("Coincident", 35, 2, 36, 2))
sketch2.addConstraint(Sketcher.Constraint("Coincident", 36, 1, 37, 1))
sketch2.addConstraint(Sketcher.Constraint("Coincident", 37, 2, 38, 2))
sketch2.addConstraint(Sketcher.Constraint("Coincident", 38, 1, 39, 1))
sketch2.addConstraint(Sketcher.Constraint("Coincident", 39, 2, 40, 2))
sketch2.addConstraint(Sketcher.Constraint("Coincident", 40, 1, 41, 1))
sketch2.addConstraint(Sketcher.Constraint("Coincident", 41, 2, 42, 2))
sketch2.addConstraint(Sketcher.Constraint("Coincident", 42, 1, 43, 1))
sketch2.addConstraint(Sketcher.Constraint("Coincident", 43, 2, 44, 1))
sketch2.addConstraint(Sketcher.Constraint("Coincident", 44, 2, 45, 1))
sketch2.addConstraint(Sketcher.Constraint("Coincident", 45, 2, 46, 1))
sketch2.addConstraint(Sketcher.Constraint("Coincident", 46, 2, 47, 1))
sketch2.addConstraint(Sketcher.Constraint("Coincident", 47, 2, 48, 2))
sketch2.addConstraint(Sketcher.Constraint("Coincident", 48, 1, 49, 1))
sketch2.addConstraint(Sketcher.Constraint("Coincident", 49, 2, 50, 2))
sketch2.addConstraint(Sketcher.Constraint("Coincident", 50, 1, 51, 1))
sketch2.addConstraint(Sketcher.Constraint("Coincident", 51, 2, 52, 2))
sketch2.addConstraint(Sketcher.Constraint("Coincident", 52, 1, 53, 1))
sketch2.addConstraint(Sketcher.Constraint("Coincident", 53, 2, 54, 2))
sketch2.addConstraint(Sketcher.Constraint("Coincident", 54, 1, 55, 1))
sketch2.addConstraint(Sketcher.Constraint("Coincident", 55, 2, 32, 2))
sketch2.addConstraint(Sketcher.Constraint("Coincident", 56, 2, 57, 1))
sketch2.addConstraint(Sketcher.Constraint("Coincident", 57, 2, 58, 1))
sketch2.addConstraint(Sketcher.Constraint("Coincident", 58, 2, 59, 1))
sketch2.addConstraint(Sketcher.Constraint("Coincident", 59, 2, 56, 1))
sketch2.addConstraint(Sketcher.Constraint("Coincident", 60, 2, 61, 1))
sketch2.addConstraint(Sketcher.Constraint("Coincident", 61, 2, 62, 1))
sketch2.addConstraint(Sketcher.Constraint("Coincident", 62, 2, 63, 1))
sketch2.addConstraint(Sketcher.Constraint("Coincident", 63, 2, 60, 1))
sketch2.addConstraint(Sketcher.Constraint("Coincident", 64, 2, 65, 1))
sketch2.addConstraint(Sketcher.Constraint("Coincident", 65, 2, 66, 1))
sketch2.addConstraint(Sketcher.Constraint("Coincident", 66, 2, 67, 1))
sketch2.addConstraint(Sketcher.Constraint("Coincident", 67, 2, 64, 1))
sketch2.addConstraint(Sketcher.Constraint("Coincident", 68, 2, 69, 1))
sketch2.addConstraint(Sketcher.Constraint("Coincident", 69, 2, 70, 1))
sketch2.addConstraint(Sketcher.Constraint("Coincident", 70, 2, 71, 1))
sketch2.addConstraint(Sketcher.Constraint("Coincident", 71, 2, 68, 1))
sketch2.addConstraint(Sketcher.Constraint("Coincident", 72, 2, 73, 1))
sketch2.addConstraint(Sketcher.Constraint("Coincident", 73, 2, 74, 1))
sketch2.addConstraint(Sketcher.Constraint("Coincident", 74, 2, 75, 1))
sketch2.addConstraint(Sketcher.Constraint("Coincident", 75, 2, 72, 1))
sketch2.addConstraint(Sketcher.Constraint("Horizontal", 5))
sketch2.addConstraint(Sketcher.Constraint("Vertical", 6))
sketch2.addConstraint(Sketcher.Constraint("Horizontal", 7))
sketch2.addConstraint(Sketcher.Constraint("Vertical", 8))
sketch2.addConstraint(Sketcher.Constraint("Vertical", 12))
sketch2.addConstraint(Sketcher.Constraint("Horizontal", 13))
sketch2.addConstraint(Sketcher.Constraint("Horizontal", 21))
sketch2.addConstraint(Sketcher.Constraint("Vertical", 22))
sketch2.addConstraint(Sketcher.Constraint("Horizontal", 23))
sketch2.addConstraint(Sketcher.Constraint("Horizontal", 27))
sketch2.addConstraint(Sketcher.Constraint("Vertical", 28))
sketch2.addConstraint(Sketcher.Constraint("Horizontal", 29))
sketch2.addConstraint(Sketcher.Constraint("Horizontal", 43))
sketch2.addConstraint(Sketcher.Constraint("Vertical", 44))
sketch2.addConstraint(Sketcher.Constraint("Horizontal", 45))
sketch2.addConstraint(Sketcher.Constraint("Vertical", 46))
sketch2.addConstraint(Sketcher.Constraint("Horizontal", 47))
sketch2.addConstraint(Sketcher.Constraint("Vertical", 56))
sketch2.addConstraint(Sketcher.Constraint("Horizontal", 57))
sketch2.addConstraint(Sketcher.Constraint("Vertical", 58))
sketch2.addConstraint(Sketcher.Constraint("Horizontal", 59))
sketch2.addConstraint(Sketcher.Constraint("Vertical", 60))
sketch2.addConstraint(Sketcher.Constraint("Horizontal", 61))
sketch2.addConstraint(Sketcher.Constraint("Vertical", 62))
sketch2.addConstraint(Sketcher.Constraint("Horizontal", 63))
sketch2.addConstraint(Sketcher.Constraint("Vertical", 64))
sketch2.addConstraint(Sketcher.Constraint("Horizontal", 65))
sketch2.addConstraint(Sketcher.Constraint("Vertical", 66))
sketch2.addConstraint(Sketcher.Constraint("Horizontal", 67))
sketch2.addConstraint(Sketcher.Constraint("Vertical", 68))
sketch2.addConstraint(Sketcher.Constraint("Horizontal", 69))
sketch2.addConstraint(Sketcher.Constraint("Vertical", 70))
sketch2.addConstraint(Sketcher.Constraint("Horizontal", 71))
sketch2.addConstraint(Sketcher.Constraint("Vertical", 72))
sketch2.addConstraint(Sketcher.Constraint("Horizontal", 73))
sketch2.addConstraint(Sketcher.Constraint("Vertical", 74))
sketch2.addConstraint(Sketcher.Constraint("Horizontal", 75))
sketch2.addConstraint(Sketcher.Constraint("Horizontal", 7, 2, 12, 2))
sketch2.addConstraint(Sketcher.Constraint("Horizontal", 59, 2, 62, 2))
sketch2.addConstraint(Sketcher.Constraint("Horizontal", 61, 2, 68, 2))
sketch2.addConstraint(Sketcher.Constraint("Horizontal", 63, 2, 70, 2))
sketch2.addConstraint(Sketcher.Constraint("Horizontal", 69, 2, 72, 2))
sketch2.addConstraint(Sketcher.Constraint("Vertical", 22, 2, 27, 2))
sketch2.addConstraint(Sketcher.Constraint("Vertical", 46, 2, 61, 2))
sketch2.addConstraint(Sketcher.Constraint("Vertical", 59, 2, 64, 2))
sketch2.addConstraint(Sketcher.Constraint("Vertical", 58, 2, 65, 2))
sketch2.addConstraint(Sketcher.Constraint("Vertical", 44, 2, 68, 2))
sketch2.addConstraint(Sketcher.Constraint("Vertical", 67, 2, 72, 2))
sketch2.addConstraint(Sketcher.Constraint("Vertical", 66, 2, 73, 2))
sketch2.addConstraint(Sketcher.Constraint("Equal", 43, 47))
sketch2.addConstraint(Sketcher.Constraint("Equal", 63, 69))
sketch2.addConstraint(Sketcher.Constraint("DistanceX", 61, 1, 61, 2, 3.043572))
sketch2.addConstraint(Sketcher.Constraint("DistanceY", 72, 2, 72, 1, 2.635759))
sketch2.addConstraint(Sketcher.Constraint("DistanceX", 15, 2, 6, 2, 12.285898))
sketch2.addConstraint(Sketcher.Constraint("DistanceX", 28, 2, 31, 2, 9.555699))
sketch2.addConstraint(Sketcher.Constraint("DistanceX", 57, 2, 47, 2, 8.903198))
sketch2.addConstraint(Sketcher.Constraint("DistanceY", 66, 2, 58, 2, 5.460399))
sketch2.addConstraint(Sketcher.Constraint("DistanceX", 43, 1, 43, 2, 3.099378))
sketch2.addConstraint(Sketcher.Constraint("DistanceX", 57, 1, 57, 2, 4.292767))
sketch2.addConstraint(Sketcher.Constraint("DistanceY", 44, 2, 44, 1, 1.592616))
sketch2.addConstraint(Sketcher.Constraint("DistanceY", 56, 2, 56, 1, 3.202404))
sketch2.addConstraint(Sketcher.Constraint("DistanceY", 60, 2, 60, 1, 12.874007))
sketch2.addConstraint(Sketcher.Constraint("DistanceY", 64, 2, 64, 1, 2.519854))
sketch2.addConstraint(Sketcher.Constraint("DistanceY", -1, 1, 56, 2, 77.754678))
pad2 = body.newObject("PartDesign::Pad", "Pad001")
pad2.Profile = sketch2
pad2.setExpression("Length", "Params.pad2_length")
pad2.Reversed = True

sketch3 = body.newObject("Sketcher::SketchObject", "Sketch002")
sketch3.AttachmentSupport = (doc.getObject("XZ_Plane"), [""])
sketch3.MapMode = "FlatFace"
sketch3.addGeometry(Part.LineSegment(V(183, -10, 0), V(183, 0, 0)), False)
sketch3.addGeometry(Part.LineSegment(V(183, 0, 0), V(160, 0, 0)), False)
sketch3.addGeometry(Part.LineSegment(V(160, 0, 0), V(160, -10, 0)), False)
sketch3.addGeometry(Part.LineSegment(V(160, -10, 0), V(183, -10, 0)), False)
sketch3.addConstraint(Sketcher.Constraint("Coincident", 0, 2, 1, 1))
sketch3.addConstraint(Sketcher.Constraint("Coincident", 1, 2, 2, 1))
sketch3.addConstraint(Sketcher.Constraint("Coincident", 2, 2, 3, 1))
sketch3.addConstraint(Sketcher.Constraint("Coincident", 3, 2, 0, 1))
sketch3.addConstraint(Sketcher.Constraint("Vertical", 0))
sketch3.addConstraint(Sketcher.Constraint("Horizontal", 1))
sketch3.addConstraint(Sketcher.Constraint("Vertical", 2))
sketch3.addConstraint(Sketcher.Constraint("Horizontal", 3))
sketch3.addConstraint(Sketcher.Constraint("PointOnObject", 0, 2, -1))
sketch3.addConstraint(Sketcher.Constraint("DistanceX", 1, 2, 1, 1, 23.0))
sketch3.addConstraint(Sketcher.Constraint("DistanceY", 0, 1, 0, 2, 10.0))
sketch3.addConstraint(Sketcher.Constraint("DistanceX", -1, 1, 0, 2, 183.0))
sketch3.setExpression("Constraints[9]", "Params.sketch3_width")
sketch3.setExpression("Constraints[10]", "Params.sketch3_height")
pocket1 = body.newObject("PartDesign::Pocket", "Pocket")
pocket1.Profile = sketch3
pocket1.setExpression("Length", "Params.pocket1_length")

sketch4 = body.newObject("Sketcher::SketchObject", "Sketch003")
sketch4.AttachmentSupport = (doc.getObject("XZ_Plane"), [""])
sketch4.MapMode = "FlatFace"
sketch4.AttachmentOffset = App.Placement(V(0, 0, -3), App.Rotation())
sketch4.addGeometry(Part.LineSegment(V(6, 9, 0), V(6, 154, 0)), False)
sketch4.addGeometry(Part.LineSegment(V(6, 154, 0), V(264, 154, 0)), False)
sketch4.addGeometry(Part.LineSegment(V(264, 154, 0), V(264, 9, 0)), False)
sketch4.addGeometry(Part.LineSegment(V(264, 9, 0), V(6, 9, 0)), False)
sketch4.addConstraint(Sketcher.Constraint("Coincident", 0, 2, 1, 1))
sketch4.addConstraint(Sketcher.Constraint("Coincident", 1, 2, 2, 1))
sketch4.addConstraint(Sketcher.Constraint("Coincident", 2, 2, 3, 1))
sketch4.addConstraint(Sketcher.Constraint("Coincident", 3, 2, 0, 1))
sketch4.addConstraint(Sketcher.Constraint("Vertical", 0))
sketch4.addConstraint(Sketcher.Constraint("Horizontal", 1))
sketch4.addConstraint(Sketcher.Constraint("Vertical", 2))
sketch4.addConstraint(Sketcher.Constraint("Horizontal", 3))
sketch4.addConstraint(Sketcher.Constraint("DistanceY", 0, 1, 0, 2, 145.0))
sketch4.addConstraint(Sketcher.Constraint("DistanceX", 1, 1, 1, 2, 258.5))
sketch4.addConstraint(Sketcher.Constraint("DistanceX", -1, 1, 0, 2, 6.0))
sketch4.addConstraint(Sketcher.Constraint("DistanceY", -1, 1, 0, 2, 154.0))
sketch4.setExpression("Constraints[8]", "Params.sketch4_height")
sketch4.setExpression("Constraints[9]", "Params.sketch4_width")
pad3 = body.newObject("PartDesign::Pad", "Pad002")
pad3.Profile = sketch4
pad3.setExpression("Length", "Params.pad3_length")
pad3.Reversed = True

doc.recompute()
